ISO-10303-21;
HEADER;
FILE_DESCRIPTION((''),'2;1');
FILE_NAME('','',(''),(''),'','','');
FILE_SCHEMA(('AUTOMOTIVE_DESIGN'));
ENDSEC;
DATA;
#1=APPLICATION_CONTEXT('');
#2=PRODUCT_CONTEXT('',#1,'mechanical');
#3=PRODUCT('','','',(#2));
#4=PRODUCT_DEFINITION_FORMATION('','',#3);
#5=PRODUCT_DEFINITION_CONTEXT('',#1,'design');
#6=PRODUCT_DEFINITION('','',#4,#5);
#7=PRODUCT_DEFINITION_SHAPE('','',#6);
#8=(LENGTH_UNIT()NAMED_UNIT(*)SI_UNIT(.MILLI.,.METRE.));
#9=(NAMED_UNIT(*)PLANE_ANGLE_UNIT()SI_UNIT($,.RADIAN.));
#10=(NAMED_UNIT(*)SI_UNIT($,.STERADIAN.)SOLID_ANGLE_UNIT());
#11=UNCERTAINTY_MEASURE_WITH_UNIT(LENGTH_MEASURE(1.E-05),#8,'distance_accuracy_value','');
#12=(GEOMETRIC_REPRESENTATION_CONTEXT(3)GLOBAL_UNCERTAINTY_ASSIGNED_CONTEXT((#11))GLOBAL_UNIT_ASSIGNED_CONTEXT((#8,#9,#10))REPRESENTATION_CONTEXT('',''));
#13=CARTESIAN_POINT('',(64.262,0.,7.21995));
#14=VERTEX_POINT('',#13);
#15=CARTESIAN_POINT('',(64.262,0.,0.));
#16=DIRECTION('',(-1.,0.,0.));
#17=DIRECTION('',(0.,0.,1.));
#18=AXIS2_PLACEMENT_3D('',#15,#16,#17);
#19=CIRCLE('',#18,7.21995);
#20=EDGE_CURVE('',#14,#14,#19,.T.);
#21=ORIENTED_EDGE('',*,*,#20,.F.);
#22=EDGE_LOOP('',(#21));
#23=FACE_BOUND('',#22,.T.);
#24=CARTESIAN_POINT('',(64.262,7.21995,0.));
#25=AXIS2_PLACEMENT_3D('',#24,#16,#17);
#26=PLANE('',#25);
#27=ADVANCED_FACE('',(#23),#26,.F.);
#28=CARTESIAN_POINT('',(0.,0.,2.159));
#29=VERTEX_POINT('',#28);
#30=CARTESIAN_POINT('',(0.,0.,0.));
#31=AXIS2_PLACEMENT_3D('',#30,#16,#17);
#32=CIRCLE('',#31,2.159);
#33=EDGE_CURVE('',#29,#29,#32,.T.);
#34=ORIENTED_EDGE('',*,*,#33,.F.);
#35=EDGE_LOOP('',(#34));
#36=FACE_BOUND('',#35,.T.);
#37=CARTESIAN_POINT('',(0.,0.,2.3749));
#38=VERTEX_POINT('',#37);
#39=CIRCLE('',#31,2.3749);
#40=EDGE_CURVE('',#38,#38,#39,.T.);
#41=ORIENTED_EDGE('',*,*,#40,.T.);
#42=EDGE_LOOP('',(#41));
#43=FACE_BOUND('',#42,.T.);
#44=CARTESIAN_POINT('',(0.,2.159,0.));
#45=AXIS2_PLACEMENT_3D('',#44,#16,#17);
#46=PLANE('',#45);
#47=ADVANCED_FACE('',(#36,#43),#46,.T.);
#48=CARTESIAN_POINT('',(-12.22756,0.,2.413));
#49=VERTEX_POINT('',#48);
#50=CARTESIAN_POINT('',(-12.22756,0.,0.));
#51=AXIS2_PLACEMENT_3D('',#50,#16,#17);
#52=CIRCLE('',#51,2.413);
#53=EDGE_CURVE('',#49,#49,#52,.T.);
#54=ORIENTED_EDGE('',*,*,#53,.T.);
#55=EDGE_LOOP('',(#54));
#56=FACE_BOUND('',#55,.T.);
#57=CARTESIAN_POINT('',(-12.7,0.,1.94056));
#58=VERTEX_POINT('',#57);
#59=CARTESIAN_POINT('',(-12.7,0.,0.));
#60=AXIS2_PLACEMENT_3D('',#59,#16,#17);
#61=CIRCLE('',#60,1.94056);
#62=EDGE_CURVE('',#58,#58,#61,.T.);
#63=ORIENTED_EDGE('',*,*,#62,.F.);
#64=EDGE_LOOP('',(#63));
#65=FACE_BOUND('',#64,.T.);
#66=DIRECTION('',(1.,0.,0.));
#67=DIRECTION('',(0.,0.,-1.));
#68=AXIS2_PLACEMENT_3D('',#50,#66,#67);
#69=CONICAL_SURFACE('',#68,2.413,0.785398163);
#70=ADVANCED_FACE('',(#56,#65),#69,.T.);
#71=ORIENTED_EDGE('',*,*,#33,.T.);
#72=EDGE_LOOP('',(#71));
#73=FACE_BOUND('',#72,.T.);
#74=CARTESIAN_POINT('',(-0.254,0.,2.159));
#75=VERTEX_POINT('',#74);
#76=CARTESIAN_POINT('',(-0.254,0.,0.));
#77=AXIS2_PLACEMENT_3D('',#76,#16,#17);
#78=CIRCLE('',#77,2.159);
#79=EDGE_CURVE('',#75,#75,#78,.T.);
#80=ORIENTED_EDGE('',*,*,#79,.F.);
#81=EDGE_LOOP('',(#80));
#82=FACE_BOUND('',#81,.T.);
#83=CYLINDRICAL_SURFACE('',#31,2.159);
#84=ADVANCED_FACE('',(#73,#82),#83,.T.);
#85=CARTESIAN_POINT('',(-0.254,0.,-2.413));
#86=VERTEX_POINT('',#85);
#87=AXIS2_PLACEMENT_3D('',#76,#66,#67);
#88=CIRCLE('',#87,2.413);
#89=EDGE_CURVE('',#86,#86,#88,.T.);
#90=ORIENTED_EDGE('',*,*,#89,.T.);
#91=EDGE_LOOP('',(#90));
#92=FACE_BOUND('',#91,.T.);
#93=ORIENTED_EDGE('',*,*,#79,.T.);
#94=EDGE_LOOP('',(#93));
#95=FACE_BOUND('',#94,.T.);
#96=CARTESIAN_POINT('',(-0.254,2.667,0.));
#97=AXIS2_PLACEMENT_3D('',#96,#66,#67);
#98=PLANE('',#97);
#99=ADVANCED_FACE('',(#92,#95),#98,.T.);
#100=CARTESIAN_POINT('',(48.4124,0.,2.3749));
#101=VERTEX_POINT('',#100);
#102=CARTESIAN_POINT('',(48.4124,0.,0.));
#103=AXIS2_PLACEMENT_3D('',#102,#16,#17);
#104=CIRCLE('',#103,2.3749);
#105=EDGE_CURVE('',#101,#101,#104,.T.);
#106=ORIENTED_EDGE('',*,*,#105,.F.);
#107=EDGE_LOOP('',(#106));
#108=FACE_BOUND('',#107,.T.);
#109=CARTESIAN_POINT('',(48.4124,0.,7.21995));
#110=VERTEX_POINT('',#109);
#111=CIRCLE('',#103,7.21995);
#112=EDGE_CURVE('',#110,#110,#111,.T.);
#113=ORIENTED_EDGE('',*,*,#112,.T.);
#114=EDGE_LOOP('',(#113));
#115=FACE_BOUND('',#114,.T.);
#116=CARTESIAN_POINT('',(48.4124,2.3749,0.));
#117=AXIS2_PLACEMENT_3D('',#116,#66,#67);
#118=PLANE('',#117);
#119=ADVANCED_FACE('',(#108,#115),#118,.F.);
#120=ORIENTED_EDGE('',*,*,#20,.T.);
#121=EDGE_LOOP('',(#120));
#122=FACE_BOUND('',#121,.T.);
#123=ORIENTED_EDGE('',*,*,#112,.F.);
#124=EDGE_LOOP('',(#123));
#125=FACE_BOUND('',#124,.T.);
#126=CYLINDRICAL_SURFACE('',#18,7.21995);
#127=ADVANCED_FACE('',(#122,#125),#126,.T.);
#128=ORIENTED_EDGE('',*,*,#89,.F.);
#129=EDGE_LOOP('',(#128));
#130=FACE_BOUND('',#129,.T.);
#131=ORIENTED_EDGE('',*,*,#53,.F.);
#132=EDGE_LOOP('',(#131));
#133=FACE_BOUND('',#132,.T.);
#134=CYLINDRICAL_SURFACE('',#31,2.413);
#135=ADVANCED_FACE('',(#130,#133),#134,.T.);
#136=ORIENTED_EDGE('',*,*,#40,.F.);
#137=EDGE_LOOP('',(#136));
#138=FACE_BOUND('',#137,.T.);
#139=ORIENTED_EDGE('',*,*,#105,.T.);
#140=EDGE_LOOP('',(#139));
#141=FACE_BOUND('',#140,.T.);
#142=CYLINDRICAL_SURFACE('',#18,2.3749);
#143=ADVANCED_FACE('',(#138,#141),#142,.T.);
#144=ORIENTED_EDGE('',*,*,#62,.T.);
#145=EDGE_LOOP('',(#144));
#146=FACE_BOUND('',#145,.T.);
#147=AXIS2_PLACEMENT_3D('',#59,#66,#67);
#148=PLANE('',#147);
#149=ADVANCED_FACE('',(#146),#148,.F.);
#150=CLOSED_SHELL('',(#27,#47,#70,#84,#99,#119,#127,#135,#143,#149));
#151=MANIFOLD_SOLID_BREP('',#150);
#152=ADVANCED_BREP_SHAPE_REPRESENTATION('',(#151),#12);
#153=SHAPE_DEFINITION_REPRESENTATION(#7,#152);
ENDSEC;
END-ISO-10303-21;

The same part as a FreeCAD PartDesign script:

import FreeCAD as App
import Part
import Sketcher
Q = App.Units.Quantity


def add_polygon(sketch, points):
    """Adds a closed chain of lines whose ends are joined by coincident constraints."""
    first, n = sketch.GeometryCount, len(points)
    for a, b in zip(points, points[1:] + points[:1]):
        sketch.addGeometry(Part.LineSegment(App.Vector(*a, 0), App.Vector(*b, 0)), False)
    for i in range(n):
        sketch.addConstraint(Sketcher.Constraint("Coincident", first + i, 2, first + (i + 1) % n, 1))

doc = App.newDocument("Part")
body = doc.addObject("PartDesign::Body", "Body")

# Sketch on XY plane
sketch1 = body.newObject("Sketcher::SketchObject", "Sketch")
sketch1.AttachmentSupport = (doc.getObject("XY_Plane"), [""])
sketch1.MapMode = "FlatFace"
add_polygon(sketch1, [(0, 2.3749), (0, 0), (64.262, 0), (64.262, 7.21995), (48.4124, 7.21995), (48.4124, 2.3749)])  # lines 0-5
sketch1.addConstraint(Sketcher.Constraint("Vertical", 0))
sketch1.addConstraint(Sketcher.Constraint("Horizontal", 1))
sketch1.addConstraint(Sketcher.Constraint("Vertical", 2))
sketch1.addConstraint(Sketcher.Constraint("Horizontal", 3))
sketch1.addConstraint(Sketcher.Constraint("Vertical", 4))
sketch1.addConstraint(Sketcher.Constraint("Horizontal", 5))
sketch1.addConstraint(Sketcher.Constraint("Coincident", 0, 2, -1, 1))
sketch1.addConstraint(Sketcher.Constraint("DistanceX", 1, 1, 1, 2, Q("2.53 in")))
sketch1.addConstraint(Sketcher.Constraint("DistanceX", 3, 2, 3, 1, Q("0.624 in")))
sketch1.addConstraint(Sketcher.Constraint("DistanceY", 0, 2, 0, 1, Q("0.0935 in")))
sketch1.addConstraint(Sketcher.Constraint("DistanceY", 2, 1, 2, 2, 7.21995))
revolution = body.newObject("PartDesign::Revolution", "Revolution")
revolution.Profile = sketch1
revolution.ReferenceAxis = (sketch1, ["H_Axis"])
revolution.Angle = 360

# Sketch on XY plane
sketch2 = body.newObject("Sketcher::SketchObject", "Sketch001")
sketch2.AttachmentSupport = (doc.getObject("XY_Plane"), [""])
sketch2.MapMode = "FlatFace"
add_polygon(sketch2, [(-12.7, 1.94056), (-12.7, 0), (0, 0), (0, 2.413), (-12.22756, 2.413)])  # lines 0-4
sketch2.addConstraint(Sketcher.Constraint("Vertical", 0))
sketch2.addConstraint(Sketcher.Constraint("Horizontal", 1))
sketch2.addConstraint(Sketcher.Constraint("Vertical", 2))
sketch2.addConstraint(Sketcher.Constraint("Horizontal", 3))
sketch2.addConstraint(Sketcher.Constraint("Coincident", 1, 2, -1, 1))
sketch2.addConstraint(Sketcher.Constraint("DistanceX", 1, 1, 1, 2, Q("0.5 in")))
sketch2.addConstraint(Sketcher.Constraint("Angle", 4, Q("-135 deg")))
sketch2.addConstraint(Sketcher.Constraint("DistanceY", 2, 1, 2, 2, Q("0.095 in")))
sketch2.addConstraint(Sketcher.Constraint("DistanceX", 3, 2, 3, 1, Q("0.4814 in")))
revolution2 = body.newObject("PartDesign::Revolution", "Revolution001")
revolution2.Profile = sketch2
revolution2.ReferenceAxis = (sketch2, ["H_Axis"])
revolution2.Angle = 360

# Sketch on XY plane
sketch3 = body.newObject("Sketcher::SketchObject", "Sketch002")
sketch3.AttachmentSupport = (doc.getObject("XY_Plane"), [""])
sketch3.MapMode = "FlatFace"
add_polygon(sketch3, [(-0.254, 2.667), (-0.254, 2.159), (0, 2.159), (0, 2.667)])  # lines 0-3
sketch3.addConstraint(Sketcher.Constraint("Vertical", 0))
sketch3.addConstraint(Sketcher.Constraint("Horizontal", 1))
sketch3.addConstraint(Sketcher.Constraint("Vertical", 2))
sketch3.addConstraint(Sketcher.Constraint("Horizontal", 3))
sketch3.addConstraint(Sketcher.Constraint("PointOnObject", 1, 2, -2))
sketch3.addConstraint(Sketcher.Constraint("DistanceX", 1, 1, 1, 2, Q("0.01 in")))
sketch3.addConstraint(Sketcher.Constraint("DistanceY", 0, 2, 0, 1, Q("0.02 in")))
sketch3.addConstraint(Sketcher.Constraint("DistanceY", -1, 1, 0, 2, Q("0.085 in")))
groove = body.newObject("PartDesign::Groove", "Groove")
groove.Profile = sketch3
groove.ReferenceAxis = (sketch3, ["H_Axis"])
groove.Angle = 360

doc.recompute()
